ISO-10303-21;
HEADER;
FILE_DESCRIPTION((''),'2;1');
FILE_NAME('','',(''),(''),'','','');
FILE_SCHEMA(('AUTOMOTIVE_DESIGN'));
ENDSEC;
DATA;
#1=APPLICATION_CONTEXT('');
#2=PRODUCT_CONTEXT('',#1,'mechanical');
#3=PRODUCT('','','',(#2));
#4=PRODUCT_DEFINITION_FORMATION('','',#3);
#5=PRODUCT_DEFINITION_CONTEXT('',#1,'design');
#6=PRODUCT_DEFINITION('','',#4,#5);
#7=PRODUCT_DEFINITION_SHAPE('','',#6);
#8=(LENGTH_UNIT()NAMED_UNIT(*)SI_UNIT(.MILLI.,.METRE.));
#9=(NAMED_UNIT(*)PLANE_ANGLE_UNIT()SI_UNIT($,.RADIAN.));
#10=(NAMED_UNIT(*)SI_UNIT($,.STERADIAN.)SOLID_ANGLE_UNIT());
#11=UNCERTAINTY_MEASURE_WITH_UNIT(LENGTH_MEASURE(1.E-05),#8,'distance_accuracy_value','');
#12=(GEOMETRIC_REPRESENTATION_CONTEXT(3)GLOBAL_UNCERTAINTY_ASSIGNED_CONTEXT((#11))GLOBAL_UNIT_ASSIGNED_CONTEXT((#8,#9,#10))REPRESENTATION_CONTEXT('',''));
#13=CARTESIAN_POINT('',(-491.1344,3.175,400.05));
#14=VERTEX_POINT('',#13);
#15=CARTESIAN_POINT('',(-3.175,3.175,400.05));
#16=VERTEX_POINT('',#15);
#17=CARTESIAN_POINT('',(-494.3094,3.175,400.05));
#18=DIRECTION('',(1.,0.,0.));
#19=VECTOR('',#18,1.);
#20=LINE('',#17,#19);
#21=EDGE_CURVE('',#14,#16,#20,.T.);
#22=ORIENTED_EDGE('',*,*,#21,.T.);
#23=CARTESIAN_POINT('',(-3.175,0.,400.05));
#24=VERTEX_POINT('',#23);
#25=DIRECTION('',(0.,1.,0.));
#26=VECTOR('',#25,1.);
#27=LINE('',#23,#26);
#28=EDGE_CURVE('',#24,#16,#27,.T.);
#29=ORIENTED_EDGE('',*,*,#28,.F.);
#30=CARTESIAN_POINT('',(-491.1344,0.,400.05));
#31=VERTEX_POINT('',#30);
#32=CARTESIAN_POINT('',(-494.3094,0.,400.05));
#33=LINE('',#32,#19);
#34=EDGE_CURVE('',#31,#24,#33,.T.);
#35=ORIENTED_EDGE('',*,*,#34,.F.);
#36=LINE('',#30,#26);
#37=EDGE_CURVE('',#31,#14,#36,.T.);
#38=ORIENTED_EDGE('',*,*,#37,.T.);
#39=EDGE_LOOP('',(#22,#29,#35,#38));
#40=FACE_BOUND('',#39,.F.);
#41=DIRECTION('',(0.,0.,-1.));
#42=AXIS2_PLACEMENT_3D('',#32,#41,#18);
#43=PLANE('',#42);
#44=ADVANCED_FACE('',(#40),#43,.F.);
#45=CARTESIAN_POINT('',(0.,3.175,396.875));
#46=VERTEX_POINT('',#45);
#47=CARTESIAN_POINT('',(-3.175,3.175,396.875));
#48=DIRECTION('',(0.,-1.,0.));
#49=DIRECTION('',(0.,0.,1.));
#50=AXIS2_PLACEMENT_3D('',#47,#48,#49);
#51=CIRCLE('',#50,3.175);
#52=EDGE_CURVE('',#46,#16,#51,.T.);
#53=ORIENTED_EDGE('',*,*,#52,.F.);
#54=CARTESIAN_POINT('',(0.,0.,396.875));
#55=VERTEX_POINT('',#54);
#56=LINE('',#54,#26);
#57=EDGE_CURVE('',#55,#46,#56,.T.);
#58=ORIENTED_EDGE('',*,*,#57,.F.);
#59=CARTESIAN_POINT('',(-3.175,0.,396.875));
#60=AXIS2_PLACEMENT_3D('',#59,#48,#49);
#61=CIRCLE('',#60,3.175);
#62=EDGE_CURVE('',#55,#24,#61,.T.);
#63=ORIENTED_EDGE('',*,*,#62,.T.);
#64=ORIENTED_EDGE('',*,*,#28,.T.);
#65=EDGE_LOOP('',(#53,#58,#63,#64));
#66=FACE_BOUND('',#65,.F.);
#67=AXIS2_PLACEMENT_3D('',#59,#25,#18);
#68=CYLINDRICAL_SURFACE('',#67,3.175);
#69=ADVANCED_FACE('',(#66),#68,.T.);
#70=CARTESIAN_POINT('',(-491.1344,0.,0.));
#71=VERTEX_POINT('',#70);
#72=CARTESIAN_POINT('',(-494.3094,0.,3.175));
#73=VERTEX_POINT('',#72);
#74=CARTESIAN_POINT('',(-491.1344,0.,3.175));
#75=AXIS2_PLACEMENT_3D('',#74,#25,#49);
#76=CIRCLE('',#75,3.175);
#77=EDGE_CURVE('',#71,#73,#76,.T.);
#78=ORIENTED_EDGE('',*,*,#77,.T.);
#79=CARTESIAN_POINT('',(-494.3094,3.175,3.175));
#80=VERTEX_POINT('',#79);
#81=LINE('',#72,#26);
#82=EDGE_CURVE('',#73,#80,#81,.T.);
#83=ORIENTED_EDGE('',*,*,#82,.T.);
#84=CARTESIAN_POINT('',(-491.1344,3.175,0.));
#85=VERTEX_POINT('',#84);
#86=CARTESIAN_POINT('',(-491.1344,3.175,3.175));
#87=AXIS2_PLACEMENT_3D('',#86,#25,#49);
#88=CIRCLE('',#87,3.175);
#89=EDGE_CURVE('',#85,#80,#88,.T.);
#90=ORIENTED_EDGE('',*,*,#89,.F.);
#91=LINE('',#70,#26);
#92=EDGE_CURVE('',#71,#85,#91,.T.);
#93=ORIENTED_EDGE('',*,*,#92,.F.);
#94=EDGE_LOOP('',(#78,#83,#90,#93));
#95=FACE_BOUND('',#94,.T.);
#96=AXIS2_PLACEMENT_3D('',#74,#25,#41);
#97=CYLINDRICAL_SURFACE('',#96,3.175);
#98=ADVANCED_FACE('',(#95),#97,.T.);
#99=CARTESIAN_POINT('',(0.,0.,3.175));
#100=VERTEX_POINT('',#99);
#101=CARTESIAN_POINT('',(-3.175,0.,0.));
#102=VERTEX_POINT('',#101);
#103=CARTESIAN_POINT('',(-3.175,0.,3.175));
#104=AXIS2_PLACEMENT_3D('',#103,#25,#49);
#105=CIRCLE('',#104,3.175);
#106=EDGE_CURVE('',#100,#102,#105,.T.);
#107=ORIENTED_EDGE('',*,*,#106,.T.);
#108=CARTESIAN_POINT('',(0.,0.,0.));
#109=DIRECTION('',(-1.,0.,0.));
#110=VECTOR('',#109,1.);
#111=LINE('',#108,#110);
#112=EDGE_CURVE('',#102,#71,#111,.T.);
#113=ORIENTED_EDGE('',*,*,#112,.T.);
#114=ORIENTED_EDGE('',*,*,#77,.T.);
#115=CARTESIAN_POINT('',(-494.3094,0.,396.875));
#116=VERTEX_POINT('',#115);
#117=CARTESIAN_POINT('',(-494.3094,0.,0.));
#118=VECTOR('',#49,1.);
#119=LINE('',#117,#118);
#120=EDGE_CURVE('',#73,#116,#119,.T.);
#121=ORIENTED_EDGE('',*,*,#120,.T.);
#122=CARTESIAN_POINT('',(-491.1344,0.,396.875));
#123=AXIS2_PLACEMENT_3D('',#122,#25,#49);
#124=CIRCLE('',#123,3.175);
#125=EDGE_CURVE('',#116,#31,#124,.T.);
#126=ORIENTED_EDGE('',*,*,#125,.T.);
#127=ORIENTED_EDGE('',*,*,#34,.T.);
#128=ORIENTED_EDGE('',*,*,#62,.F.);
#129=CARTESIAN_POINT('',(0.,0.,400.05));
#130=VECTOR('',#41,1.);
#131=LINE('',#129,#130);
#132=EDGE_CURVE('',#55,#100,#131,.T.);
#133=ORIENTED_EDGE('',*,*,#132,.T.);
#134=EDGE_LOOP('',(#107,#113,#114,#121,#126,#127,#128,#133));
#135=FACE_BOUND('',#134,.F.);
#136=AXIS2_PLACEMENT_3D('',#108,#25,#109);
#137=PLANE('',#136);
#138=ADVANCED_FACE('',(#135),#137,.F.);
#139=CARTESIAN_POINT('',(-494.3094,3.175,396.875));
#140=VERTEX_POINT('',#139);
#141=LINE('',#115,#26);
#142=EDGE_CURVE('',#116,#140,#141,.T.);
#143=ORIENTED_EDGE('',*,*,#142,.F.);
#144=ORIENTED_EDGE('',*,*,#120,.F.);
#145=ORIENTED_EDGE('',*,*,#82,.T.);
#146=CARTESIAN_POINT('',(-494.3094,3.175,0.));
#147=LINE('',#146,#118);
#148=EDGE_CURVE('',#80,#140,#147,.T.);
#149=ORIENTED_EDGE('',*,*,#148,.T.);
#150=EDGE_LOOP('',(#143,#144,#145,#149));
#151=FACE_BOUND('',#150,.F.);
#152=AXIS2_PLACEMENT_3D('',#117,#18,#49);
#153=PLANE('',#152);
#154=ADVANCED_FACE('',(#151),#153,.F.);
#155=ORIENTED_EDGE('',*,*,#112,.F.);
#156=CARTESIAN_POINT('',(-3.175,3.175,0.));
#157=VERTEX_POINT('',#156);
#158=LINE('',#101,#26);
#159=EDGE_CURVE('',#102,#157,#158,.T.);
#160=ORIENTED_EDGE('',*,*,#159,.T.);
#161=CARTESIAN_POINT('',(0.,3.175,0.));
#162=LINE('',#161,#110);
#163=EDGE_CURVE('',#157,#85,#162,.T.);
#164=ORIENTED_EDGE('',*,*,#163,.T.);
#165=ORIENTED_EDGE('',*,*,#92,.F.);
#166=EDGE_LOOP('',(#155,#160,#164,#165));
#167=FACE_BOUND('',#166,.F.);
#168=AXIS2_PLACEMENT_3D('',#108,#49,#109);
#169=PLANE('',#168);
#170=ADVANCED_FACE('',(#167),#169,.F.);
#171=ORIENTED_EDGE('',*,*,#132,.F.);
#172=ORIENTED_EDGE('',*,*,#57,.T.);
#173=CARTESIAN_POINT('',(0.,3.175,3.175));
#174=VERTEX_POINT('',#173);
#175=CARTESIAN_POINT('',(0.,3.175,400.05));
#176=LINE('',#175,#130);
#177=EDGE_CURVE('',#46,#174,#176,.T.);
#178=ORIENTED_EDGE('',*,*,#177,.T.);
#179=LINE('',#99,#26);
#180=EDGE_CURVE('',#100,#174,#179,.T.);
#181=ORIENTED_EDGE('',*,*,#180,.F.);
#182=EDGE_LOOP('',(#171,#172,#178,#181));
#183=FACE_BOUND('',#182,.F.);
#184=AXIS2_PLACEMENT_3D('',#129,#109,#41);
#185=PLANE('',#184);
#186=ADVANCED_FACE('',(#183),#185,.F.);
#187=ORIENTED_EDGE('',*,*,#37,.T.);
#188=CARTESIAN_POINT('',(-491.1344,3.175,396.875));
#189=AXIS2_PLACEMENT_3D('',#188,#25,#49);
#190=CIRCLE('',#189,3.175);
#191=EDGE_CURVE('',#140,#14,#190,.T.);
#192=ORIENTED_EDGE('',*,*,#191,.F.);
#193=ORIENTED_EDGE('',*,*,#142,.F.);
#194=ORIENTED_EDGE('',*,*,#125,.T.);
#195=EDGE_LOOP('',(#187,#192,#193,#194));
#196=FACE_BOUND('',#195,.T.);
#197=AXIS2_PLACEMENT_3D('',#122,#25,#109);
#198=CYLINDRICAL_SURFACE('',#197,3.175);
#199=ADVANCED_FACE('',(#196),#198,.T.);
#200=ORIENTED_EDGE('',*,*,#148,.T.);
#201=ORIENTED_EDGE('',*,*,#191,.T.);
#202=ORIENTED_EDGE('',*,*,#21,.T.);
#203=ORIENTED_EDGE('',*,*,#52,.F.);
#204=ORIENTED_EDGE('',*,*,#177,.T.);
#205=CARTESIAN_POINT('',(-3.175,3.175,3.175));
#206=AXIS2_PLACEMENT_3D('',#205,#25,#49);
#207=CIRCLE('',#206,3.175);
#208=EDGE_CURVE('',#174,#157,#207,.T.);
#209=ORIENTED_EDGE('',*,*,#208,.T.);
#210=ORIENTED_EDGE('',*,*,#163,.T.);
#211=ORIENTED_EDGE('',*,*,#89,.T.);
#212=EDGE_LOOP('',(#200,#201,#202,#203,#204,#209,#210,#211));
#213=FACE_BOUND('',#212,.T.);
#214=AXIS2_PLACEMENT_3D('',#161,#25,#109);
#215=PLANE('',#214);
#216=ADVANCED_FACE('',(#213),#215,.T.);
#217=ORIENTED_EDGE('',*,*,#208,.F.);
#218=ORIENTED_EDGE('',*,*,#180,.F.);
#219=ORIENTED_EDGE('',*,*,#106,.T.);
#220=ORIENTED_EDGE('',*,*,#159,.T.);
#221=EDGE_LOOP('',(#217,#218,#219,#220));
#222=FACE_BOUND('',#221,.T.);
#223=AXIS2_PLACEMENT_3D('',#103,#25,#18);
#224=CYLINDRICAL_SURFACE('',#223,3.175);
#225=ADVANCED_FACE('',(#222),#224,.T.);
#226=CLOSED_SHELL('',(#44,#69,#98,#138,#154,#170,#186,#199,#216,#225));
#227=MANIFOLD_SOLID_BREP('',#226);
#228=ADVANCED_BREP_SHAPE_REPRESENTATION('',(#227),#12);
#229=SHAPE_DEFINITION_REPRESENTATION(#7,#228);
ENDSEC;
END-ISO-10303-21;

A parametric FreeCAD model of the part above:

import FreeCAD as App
import Part
import Sketcher

V = App.Vector
Q = App.Units.Quantity


def edges_at(feature, points):
    """Names of the edges that pass closest to the given points."""
    edges = feature.Shape.Edges
    near = lambda p: min(range(len(edges)), key=lambda i: edges[i].distToShape(Part.Vertex(*p))[0])
    return sorted({f"Edge{near(p) + 1}" for p in points})

doc = App.newDocument("Part")
body = doc.addObject("PartDesign::Body", "Body")

sketch1 = body.newObject("Sketcher::SketchObject", "Sketch")
sketch1.AttachmentSupport = (doc.getObject("XZ_Plane"), [""])
sketch1.MapMode = "FlatFace"
sketch1.addGeometry([
    Part.LineSegment(V(-494.3094, 0, 0), V(-494.3094, 400.05, 0)),
    Part.LineSegment(V(-494.3094, 400.05, 0), V(0, 400.05, 0)),
    Part.LineSegment(V(0, 400.05, 0), V(0, 0, 0)),
    Part.LineSegment(V(0, 0, 0), V(-494.3094, 0, 0)),
], False)
sketch1.addConstraint([
    Sketcher.Constraint("Coincident", 0, 2, 1, 1),
    Sketcher.Constraint("Coincident", 1, 2, 2, 1),
    Sketcher.Constraint("Coincident", 2, 2, 3, 1),
    Sketcher.Constraint("Coincident", 3, 2, 0, 1),
    Sketcher.Constraint("Vertical", 0),
    Sketcher.Constraint("Horizontal", 1),
    Sketcher.Constraint("Vertical", 2),
    Sketcher.Constraint("Horizontal", 3),
    Sketcher.Constraint("Coincident", 2, 2, -1, 1),
    Sketcher.Constraint("DistanceY", 0, 1, 0, 2, Q("15.75 in")),
    Sketcher.Constraint("DistanceX", 1, 1, 1, 2, Q("19.461 in")),
])
pad1 = body.newObject("PartDesign::Pad", "Pad")
pad1.Profile = sketch1
pad1.Length = Q("0.125 in")
pad1.Reversed = True
doc.recompute()

fillet = body.newObject("PartDesign::Fillet", "Fillet")
fillet.Base = (pad1, edges_at(pad1, [(0, 1.587, 400.05)]))
fillet.Radius = Q("0.125 in")
doc.recompute()

fillet2 = body.newObject("PartDesign::Fillet", "Fillet001")
fillet2.Base = (fillet, edges_at(fillet, [(0, 1.587, 0)]))
fillet2.Radius = Q("0.125 in")
doc.recompute()

fillet3 = body.newObject("PartDesign::Fillet", "Fillet002")
fillet3.Base = (fillet2, edges_at(fillet2, [(-494.309, 1.587, 0)]))
fillet3.Radius = Q("0.125 in")
doc.recompute()

fillet4 = body.newObject("PartDesign::Fillet", "Fillet003")
fillet4.Base = (fillet3, edges_at(fillet3, [(-494.309, 1.587, 400.05)]))
fillet4.Radius = Q("0.125 in")

doc.recompute()
